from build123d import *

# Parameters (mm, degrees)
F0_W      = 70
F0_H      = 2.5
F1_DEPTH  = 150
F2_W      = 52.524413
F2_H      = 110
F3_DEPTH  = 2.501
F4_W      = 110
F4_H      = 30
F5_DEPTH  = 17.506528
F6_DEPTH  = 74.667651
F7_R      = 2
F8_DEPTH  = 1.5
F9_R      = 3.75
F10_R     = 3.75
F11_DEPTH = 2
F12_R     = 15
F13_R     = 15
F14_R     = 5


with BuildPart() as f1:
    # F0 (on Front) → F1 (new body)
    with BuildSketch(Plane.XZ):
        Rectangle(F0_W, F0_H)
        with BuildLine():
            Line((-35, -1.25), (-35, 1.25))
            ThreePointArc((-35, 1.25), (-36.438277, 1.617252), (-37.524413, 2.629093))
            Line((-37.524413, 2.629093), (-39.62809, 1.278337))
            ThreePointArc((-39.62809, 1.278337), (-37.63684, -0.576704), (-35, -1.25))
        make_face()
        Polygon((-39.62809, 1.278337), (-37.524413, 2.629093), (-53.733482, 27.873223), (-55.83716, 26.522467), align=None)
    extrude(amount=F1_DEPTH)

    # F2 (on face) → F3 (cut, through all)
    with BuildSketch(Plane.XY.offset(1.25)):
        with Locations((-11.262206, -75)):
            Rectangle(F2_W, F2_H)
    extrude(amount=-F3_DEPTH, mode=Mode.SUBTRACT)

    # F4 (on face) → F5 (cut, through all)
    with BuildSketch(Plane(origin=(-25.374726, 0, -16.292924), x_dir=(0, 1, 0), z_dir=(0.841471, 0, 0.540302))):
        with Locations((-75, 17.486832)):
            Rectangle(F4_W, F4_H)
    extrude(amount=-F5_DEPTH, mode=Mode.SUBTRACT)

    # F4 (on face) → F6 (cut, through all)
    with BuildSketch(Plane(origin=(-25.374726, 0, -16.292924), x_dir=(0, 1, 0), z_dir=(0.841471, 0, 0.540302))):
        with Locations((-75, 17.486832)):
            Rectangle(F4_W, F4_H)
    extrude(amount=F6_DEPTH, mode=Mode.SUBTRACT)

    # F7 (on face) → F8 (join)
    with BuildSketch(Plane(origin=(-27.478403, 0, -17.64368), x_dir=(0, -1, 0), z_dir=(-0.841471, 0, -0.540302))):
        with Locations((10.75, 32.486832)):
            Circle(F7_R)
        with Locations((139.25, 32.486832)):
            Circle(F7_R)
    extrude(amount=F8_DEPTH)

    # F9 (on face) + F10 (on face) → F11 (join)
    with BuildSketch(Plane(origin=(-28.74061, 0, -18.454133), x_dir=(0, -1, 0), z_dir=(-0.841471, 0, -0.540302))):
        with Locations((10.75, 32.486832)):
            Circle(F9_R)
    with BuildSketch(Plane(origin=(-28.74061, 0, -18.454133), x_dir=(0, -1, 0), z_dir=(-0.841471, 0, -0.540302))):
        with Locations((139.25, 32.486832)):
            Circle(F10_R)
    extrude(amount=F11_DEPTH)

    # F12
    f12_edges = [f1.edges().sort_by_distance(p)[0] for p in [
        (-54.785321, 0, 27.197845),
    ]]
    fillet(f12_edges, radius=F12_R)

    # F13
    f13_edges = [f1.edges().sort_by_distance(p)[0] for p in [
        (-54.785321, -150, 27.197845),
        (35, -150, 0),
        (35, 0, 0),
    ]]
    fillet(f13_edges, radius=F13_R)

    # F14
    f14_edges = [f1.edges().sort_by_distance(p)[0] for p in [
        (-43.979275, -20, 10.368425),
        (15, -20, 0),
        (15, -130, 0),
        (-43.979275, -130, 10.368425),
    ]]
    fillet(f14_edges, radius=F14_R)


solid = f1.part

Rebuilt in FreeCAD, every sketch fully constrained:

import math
import FreeCAD as App
import Part
import Sketcher
from FreeCAD import Vector


def edges_at(feature, points):
    """Names of the edges that pass closest to the given points."""
    edges = feature.Shape.Edges
    near = lambda p: min(range(len(edges)), key=lambda i: edges[i].distToShape(Part.Vertex(*p))[0])
    return sorted({f"Edge{near(p) + 1}" for p in points})


def add_polygon(sketch, points):
    """Adds a closed chain of lines whose ends are joined by coincident constraints."""
    first, n = sketch.GeometryCount, len(points)
    for a, b in zip(points, points[1:] + points[:1]):
        sketch.addGeometry(Part.LineSegment(App.Vector(*a, 0), App.Vector(*b, 0)), False)
    for i in range(n):
        sketch.addConstraint(Sketcher.Constraint("Coincident", first + i, 2, first + (i + 1) % n, 1))

doc = App.newDocument("Part")
body = doc.addObject("PartDesign::Body", "Body")

# Sketch on XZ plane
sketch1 = body.newObject("Sketcher::SketchObject", "Sketch")
sketch1.AttachmentSupport = (doc.getObject("XZ_Plane"), [""])
sketch1.MapMode = "FlatFace"
sketch1.addGeometry(Part.LineSegment(Vector(-35, -1.2, 0), Vector(35, -1.2, 0)), False)
sketch1.addGeometry(Part.LineSegment(Vector(35, -1.2, 0), Vector(35, 1.2, 0)), False)
sketch1.addGeometry(Part.LineSegment(Vector(35, 1.2, 0), Vector(-35, 1.2, 0)), False)
sketch1.addGeometry(Part.ArcOfCircle(Part.Circle(Vector(-35, 4.2, 0), Vector(0, 0, 1), 3), math.radians(-147), math.radians(-90)), False)
sketch1.addGeometry(Part.LineSegment(Vector(-37.5, 2.6, 0), Vector(-53.7, 27.9, 0)), False)
sketch1.addGeometry(Part.LineSegment(Vector(-53.7, 27.9, 0), Vector(-55.8, 26.5, 0)), False)
sketch1.addGeometry(Part.LineSegment(Vector(-55.8, 26.5, 0), Vector(-39.6, 1.3, 0)), False)
sketch1.addGeometry(Part.ArcOfCircle(Part.Circle(Vector(-35, 4.3, 0), Vector(0, 0, 1), 5.5), math.radians(-147), math.radians(-90)), False)
sketch1.addConstraint(Sketcher.Constraint("Coincident", 0, 2, 1, 1))
sketch1.addConstraint(Sketcher.Constraint("Coincident", 1, 2, 2, 1))
sketch1.addConstraint(Sketcher.Constraint("Tangent", 2, 2, 3, 2))
sketch1.addConstraint(Sketcher.Constraint("Tangent", 3, 1, 4, 1))
sketch1.addConstraint(Sketcher.Constraint("Coincident", 4, 2, 5, 1))
sketch1.addConstraint(Sketcher.Constraint("Coincident", 5, 2, 6, 1))
sketch1.addConstraint(Sketcher.Constraint("Tangent", 6, 2, 7, 1))
sketch1.addConstraint(Sketcher.Constraint("Tangent", 7, 2, 0, 1))
sketch1.addConstraint(Sketcher.Constraint("Horizontal", 0))
sketch1.addConstraint(Sketcher.Constraint("Vertical", 1))
sketch1.addConstraint(Sketcher.Constraint("Horizontal", 2))
sketch1.addConstraint(Sketcher.Constraint("Coincident", 7, 3, 3, 3))
sketch1.addConstraint(Sketcher.Constraint("Symmetric", 0, 2, 2, 2, -1, 1))
sketch1.addConstraint(Sketcher.Constraint("Perpendicular", 4, 5))
sketch1.addConstraint(Sketcher.Constraint("Perpendicular", 5, 6))
sketch1.addConstraint(Sketcher.Constraint("Radius", 7, 5.500001))
sketch1.addConstraint(Sketcher.Constraint("DistanceX", 0, 1, 0, 2, 70.0))
sketch1.addConstraint(Sketcher.Constraint("Distance", 4, 30.0))
sketch1.addConstraint(Sketcher.Constraint("DistanceY", 1, 1, 1, 2, 2.5))
sketch1.addConstraint(Sketcher.Constraint("DistanceX", 5, 2, -1, 1, 55.83716))
pad1 = body.newObject("PartDesign::Pad", "Pad")
pad1.Profile = sketch1
pad1.Length = 150

# Sketch on XY plane
sketch2 = body.newObject("Sketcher::SketchObject", "Sketch001")
sketch2.AttachmentSupport = (doc.getObject("XY_Plane"), [""])
sketch2.MapMode = "FlatFace"
sketch2.AttachmentOffset = App.Placement(Vector(0, 0, 1.25), App.Rotation())
add_polygon(sketch2, [(-38, -20), (-38, -130), (15, -130), (15, -20)])  # lines 0-3
sketch2.addConstraint(Sketcher.Constraint("Vertical", 0))
sketch2.addConstraint(Sketcher.Constraint("Horizontal", 1))
sketch2.addConstraint(Sketcher.Constraint("Vertical", 2))
sketch2.addConstraint(Sketcher.Constraint("Horizontal", 3))
sketch2.addConstraint(Sketcher.Constraint("DistanceY", 0, 2, 0, 1, 110.0))
sketch2.addConstraint(Sketcher.Constraint("DistanceY", 0, 2, -1, 1, 130.0))
sketch2.addConstraint(Sketcher.Constraint("DistanceX", -1, 1, 1, 2, 15.000001))
sketch2.addConstraint(Sketcher.Constraint("DistanceX", 1, 1, 1, 2, 52.524413))
pocket1 = body.newObject("PartDesign::Pocket", "Pocket")
pocket1.Profile = sketch2
pocket1.Type = "ThroughAll"

# Sketch on an angled plane
sketch3 = body.newObject("Sketcher::SketchObject", "Sketch002")
sketch3.Placement = App.Placement(Vector(-25.374726, 0, -16.292924), App.Rotation(Vector(0, 1, 0), Vector(-0.540302082, 0, 0.841471128), Vector(0.841471128, 0, 0.540302082), "ZXY"))
add_polygon(sketch3, [(-130, 32), (-130, 2), (-20, 2), (-20, 32)])  # lines 0-3
sketch3.addConstraint(Sketcher.Constraint("Vertical", 0))
sketch3.addConstraint(Sketcher.Constraint("Horizontal", 1))
sketch3.addConstraint(Sketcher.Constraint("Vertical", 2))
sketch3.addConstraint(Sketcher.Constraint("Horizontal", 3))
sketch3.addConstraint(Sketcher.Constraint("DistanceX", 1, 1, 1, 2, 110.0))
sketch3.addConstraint(Sketcher.Constraint("DistanceY", 0, 2, 0, 1, 30.0))
sketch3.addConstraint(Sketcher.Constraint("DistanceX", 0, 2, -1, 1, 130.0))
sketch3.addConstraint(Sketcher.Constraint("DistanceY", -1, 1, 0, 2, 2.486832))
pocket2 = body.newObject("PartDesign::Pocket", "Pocket001")
pocket2.Profile = sketch3
pocket2.Type = "ThroughAll"

# Sketch on an angled plane
sketch4 = body.newObject("Sketcher::SketchObject", "Sketch003")
sketch4.Placement = App.Placement(Vector(-25.374726, 0, -16.292924), App.Rotation(Vector(0, 1, 0), Vector(-0.540302082, 0, 0.841471128), Vector(0.841471128, 0, 0.540302082), "ZXY"))
add_polygon(sketch4, [(-130, 32), (-130, 2), (-20, 2), (-20, 32)])  # lines 0-3
sketch4.addConstraint(Sketcher.Constraint("Vertical", 0))
sketch4.addConstraint(Sketcher.Constraint("Horizontal", 1))
sketch4.addConstraint(Sketcher.Constraint("Vertical", 2))
sketch4.addConstraint(Sketcher.Constraint("Horizontal", 3))
sketch4.addConstraint(Sketcher.Constraint("DistanceX", 1, 1, 1, 2, 110.0))
sketch4.addConstraint(Sketcher.Constraint("DistanceY", 0, 2, 0, 1, 30.0))
sketch4.addConstraint(Sketcher.Constraint("DistanceX", 0, 2, -1, 1, 130.0))
sketch4.addConstraint(Sketcher.Constraint("DistanceY", -1, 1, 0, 2, 2.486832))
pocket3 = body.newObject("PartDesign::Pocket", "Pocket002")
pocket3.Profile = sketch4
pocket3.Type = "ThroughAll"
pocket3.Reversed = True

# Sketch on an angled plane
sketch5 = body.newObject("Sketcher::SketchObject", "Sketch004")
sketch5.Placement = App.Placement(Vector(-27.478403, 0, -17.64368), App.Rotation(Vector(0, -1, 0), Vector(-0.540302082, 0, 0.841471128), Vector(-0.841471128, 0, -0.540302082), "ZXY"))
sketch5.addGeometry(Part.Circle(Vector(10.8, 32.5, 0), Vector(0, 0, 1), 2), False)
sketch5.addGeometry(Part.Circle(Vector(139.2, 32.5, 0), Vector(0, 0, 1), 2), False)
sketch5.addConstraint(Sketcher.Constraint("Equal", 0, 1))
sketch5.addConstraint(Sketcher.Constraint("Horizontal", 0, 3, 1, 3))
sketch5.addConstraint(Sketcher.Constraint("Diameter", 0, 4.0))
sketch5.addConstraint(Sketcher.Constraint("DistanceX", 0, 3, 1, 3, 128.5))
sketch5.addConstraint(Sketcher.Constraint("DistanceX", -1, 1, 0, 3, 10.75))
sketch5.addConstraint(Sketcher.Constraint("DistanceY", -1, 1, 0, 3, 32.486832))
pad2 = body.newObject("PartDesign::Pad", "Pad001")
pad2.Profile = sketch5
pad2.Length = 1.5

# Sketch on an angled plane
sketch6 = body.newObject("Sketcher::SketchObject", "Sketch005")
sketch6.Placement = App.Placement(Vector(-28.74061, 0, -18.454133), App.Rotation(Vector(0, -1, 0), Vector(-0.540302082, 0, 0.841471128), Vector(-0.841471128, 0, -0.540302082), "ZXY"))
sketch6.addGeometry(Part.Circle(Vector(10.8, 32.5, 0), Vector(0, 0, 1), 3.8), False)
sketch6.addGeometry(Part.Circle(Vector(139.2, 32.5, 0), Vector(0, 0, 1), 3.8), False)
sketch6.addConstraint(Sketcher.Constraint("Equal", 0, 1))
sketch6.addConstraint(Sketcher.Constraint("Horizontal", 0, 3, 1, 3))
sketch6.addConstraint(Sketcher.Constraint("Diameter", 0, 7.5))
sketch6.addConstraint(Sketcher.Constraint("DistanceX", 0, 3, 1, 3, 128.5))
sketch6.addConstraint(Sketcher.Constraint("DistanceX", -1, 1, 0, 3, 10.75))
sketch6.addConstraint(Sketcher.Constraint("DistanceY", -1, 1, 0, 3, 32.486832))
pad3 = body.newObject("PartDesign::Pad", "Pad002")
pad3.Profile = sketch6
pad3.Length = 2
doc.recompute()

fillet = body.newObject("PartDesign::Fillet", "Fillet")
fillet.Base = (pad3, edges_at(pad3, [(-54.785, 0, 27.198)]))
fillet.Radius = 15
doc.recompute()

fillet2 = body.newObject("PartDesign::Fillet", "Fillet001")
fillet2.Base = (fillet, edges_at(fillet, [(-54.785, -150, 27.198), (35, -150, 0), (35, 0, 0)]))
fillet2.Radius = 15
doc.recompute()

fillet3 = body.newObject("PartDesign::Fillet", "Fillet002")
fillet3.Base = (fillet2, edges_at(fillet2, [
    (-43.979, -20, 10.368),
    (15, -20, 0),
    (15, -130, 0),
    (-43.979, -130, 10.368),
]))
fillet3.Radius = 5

doc.recompute()
